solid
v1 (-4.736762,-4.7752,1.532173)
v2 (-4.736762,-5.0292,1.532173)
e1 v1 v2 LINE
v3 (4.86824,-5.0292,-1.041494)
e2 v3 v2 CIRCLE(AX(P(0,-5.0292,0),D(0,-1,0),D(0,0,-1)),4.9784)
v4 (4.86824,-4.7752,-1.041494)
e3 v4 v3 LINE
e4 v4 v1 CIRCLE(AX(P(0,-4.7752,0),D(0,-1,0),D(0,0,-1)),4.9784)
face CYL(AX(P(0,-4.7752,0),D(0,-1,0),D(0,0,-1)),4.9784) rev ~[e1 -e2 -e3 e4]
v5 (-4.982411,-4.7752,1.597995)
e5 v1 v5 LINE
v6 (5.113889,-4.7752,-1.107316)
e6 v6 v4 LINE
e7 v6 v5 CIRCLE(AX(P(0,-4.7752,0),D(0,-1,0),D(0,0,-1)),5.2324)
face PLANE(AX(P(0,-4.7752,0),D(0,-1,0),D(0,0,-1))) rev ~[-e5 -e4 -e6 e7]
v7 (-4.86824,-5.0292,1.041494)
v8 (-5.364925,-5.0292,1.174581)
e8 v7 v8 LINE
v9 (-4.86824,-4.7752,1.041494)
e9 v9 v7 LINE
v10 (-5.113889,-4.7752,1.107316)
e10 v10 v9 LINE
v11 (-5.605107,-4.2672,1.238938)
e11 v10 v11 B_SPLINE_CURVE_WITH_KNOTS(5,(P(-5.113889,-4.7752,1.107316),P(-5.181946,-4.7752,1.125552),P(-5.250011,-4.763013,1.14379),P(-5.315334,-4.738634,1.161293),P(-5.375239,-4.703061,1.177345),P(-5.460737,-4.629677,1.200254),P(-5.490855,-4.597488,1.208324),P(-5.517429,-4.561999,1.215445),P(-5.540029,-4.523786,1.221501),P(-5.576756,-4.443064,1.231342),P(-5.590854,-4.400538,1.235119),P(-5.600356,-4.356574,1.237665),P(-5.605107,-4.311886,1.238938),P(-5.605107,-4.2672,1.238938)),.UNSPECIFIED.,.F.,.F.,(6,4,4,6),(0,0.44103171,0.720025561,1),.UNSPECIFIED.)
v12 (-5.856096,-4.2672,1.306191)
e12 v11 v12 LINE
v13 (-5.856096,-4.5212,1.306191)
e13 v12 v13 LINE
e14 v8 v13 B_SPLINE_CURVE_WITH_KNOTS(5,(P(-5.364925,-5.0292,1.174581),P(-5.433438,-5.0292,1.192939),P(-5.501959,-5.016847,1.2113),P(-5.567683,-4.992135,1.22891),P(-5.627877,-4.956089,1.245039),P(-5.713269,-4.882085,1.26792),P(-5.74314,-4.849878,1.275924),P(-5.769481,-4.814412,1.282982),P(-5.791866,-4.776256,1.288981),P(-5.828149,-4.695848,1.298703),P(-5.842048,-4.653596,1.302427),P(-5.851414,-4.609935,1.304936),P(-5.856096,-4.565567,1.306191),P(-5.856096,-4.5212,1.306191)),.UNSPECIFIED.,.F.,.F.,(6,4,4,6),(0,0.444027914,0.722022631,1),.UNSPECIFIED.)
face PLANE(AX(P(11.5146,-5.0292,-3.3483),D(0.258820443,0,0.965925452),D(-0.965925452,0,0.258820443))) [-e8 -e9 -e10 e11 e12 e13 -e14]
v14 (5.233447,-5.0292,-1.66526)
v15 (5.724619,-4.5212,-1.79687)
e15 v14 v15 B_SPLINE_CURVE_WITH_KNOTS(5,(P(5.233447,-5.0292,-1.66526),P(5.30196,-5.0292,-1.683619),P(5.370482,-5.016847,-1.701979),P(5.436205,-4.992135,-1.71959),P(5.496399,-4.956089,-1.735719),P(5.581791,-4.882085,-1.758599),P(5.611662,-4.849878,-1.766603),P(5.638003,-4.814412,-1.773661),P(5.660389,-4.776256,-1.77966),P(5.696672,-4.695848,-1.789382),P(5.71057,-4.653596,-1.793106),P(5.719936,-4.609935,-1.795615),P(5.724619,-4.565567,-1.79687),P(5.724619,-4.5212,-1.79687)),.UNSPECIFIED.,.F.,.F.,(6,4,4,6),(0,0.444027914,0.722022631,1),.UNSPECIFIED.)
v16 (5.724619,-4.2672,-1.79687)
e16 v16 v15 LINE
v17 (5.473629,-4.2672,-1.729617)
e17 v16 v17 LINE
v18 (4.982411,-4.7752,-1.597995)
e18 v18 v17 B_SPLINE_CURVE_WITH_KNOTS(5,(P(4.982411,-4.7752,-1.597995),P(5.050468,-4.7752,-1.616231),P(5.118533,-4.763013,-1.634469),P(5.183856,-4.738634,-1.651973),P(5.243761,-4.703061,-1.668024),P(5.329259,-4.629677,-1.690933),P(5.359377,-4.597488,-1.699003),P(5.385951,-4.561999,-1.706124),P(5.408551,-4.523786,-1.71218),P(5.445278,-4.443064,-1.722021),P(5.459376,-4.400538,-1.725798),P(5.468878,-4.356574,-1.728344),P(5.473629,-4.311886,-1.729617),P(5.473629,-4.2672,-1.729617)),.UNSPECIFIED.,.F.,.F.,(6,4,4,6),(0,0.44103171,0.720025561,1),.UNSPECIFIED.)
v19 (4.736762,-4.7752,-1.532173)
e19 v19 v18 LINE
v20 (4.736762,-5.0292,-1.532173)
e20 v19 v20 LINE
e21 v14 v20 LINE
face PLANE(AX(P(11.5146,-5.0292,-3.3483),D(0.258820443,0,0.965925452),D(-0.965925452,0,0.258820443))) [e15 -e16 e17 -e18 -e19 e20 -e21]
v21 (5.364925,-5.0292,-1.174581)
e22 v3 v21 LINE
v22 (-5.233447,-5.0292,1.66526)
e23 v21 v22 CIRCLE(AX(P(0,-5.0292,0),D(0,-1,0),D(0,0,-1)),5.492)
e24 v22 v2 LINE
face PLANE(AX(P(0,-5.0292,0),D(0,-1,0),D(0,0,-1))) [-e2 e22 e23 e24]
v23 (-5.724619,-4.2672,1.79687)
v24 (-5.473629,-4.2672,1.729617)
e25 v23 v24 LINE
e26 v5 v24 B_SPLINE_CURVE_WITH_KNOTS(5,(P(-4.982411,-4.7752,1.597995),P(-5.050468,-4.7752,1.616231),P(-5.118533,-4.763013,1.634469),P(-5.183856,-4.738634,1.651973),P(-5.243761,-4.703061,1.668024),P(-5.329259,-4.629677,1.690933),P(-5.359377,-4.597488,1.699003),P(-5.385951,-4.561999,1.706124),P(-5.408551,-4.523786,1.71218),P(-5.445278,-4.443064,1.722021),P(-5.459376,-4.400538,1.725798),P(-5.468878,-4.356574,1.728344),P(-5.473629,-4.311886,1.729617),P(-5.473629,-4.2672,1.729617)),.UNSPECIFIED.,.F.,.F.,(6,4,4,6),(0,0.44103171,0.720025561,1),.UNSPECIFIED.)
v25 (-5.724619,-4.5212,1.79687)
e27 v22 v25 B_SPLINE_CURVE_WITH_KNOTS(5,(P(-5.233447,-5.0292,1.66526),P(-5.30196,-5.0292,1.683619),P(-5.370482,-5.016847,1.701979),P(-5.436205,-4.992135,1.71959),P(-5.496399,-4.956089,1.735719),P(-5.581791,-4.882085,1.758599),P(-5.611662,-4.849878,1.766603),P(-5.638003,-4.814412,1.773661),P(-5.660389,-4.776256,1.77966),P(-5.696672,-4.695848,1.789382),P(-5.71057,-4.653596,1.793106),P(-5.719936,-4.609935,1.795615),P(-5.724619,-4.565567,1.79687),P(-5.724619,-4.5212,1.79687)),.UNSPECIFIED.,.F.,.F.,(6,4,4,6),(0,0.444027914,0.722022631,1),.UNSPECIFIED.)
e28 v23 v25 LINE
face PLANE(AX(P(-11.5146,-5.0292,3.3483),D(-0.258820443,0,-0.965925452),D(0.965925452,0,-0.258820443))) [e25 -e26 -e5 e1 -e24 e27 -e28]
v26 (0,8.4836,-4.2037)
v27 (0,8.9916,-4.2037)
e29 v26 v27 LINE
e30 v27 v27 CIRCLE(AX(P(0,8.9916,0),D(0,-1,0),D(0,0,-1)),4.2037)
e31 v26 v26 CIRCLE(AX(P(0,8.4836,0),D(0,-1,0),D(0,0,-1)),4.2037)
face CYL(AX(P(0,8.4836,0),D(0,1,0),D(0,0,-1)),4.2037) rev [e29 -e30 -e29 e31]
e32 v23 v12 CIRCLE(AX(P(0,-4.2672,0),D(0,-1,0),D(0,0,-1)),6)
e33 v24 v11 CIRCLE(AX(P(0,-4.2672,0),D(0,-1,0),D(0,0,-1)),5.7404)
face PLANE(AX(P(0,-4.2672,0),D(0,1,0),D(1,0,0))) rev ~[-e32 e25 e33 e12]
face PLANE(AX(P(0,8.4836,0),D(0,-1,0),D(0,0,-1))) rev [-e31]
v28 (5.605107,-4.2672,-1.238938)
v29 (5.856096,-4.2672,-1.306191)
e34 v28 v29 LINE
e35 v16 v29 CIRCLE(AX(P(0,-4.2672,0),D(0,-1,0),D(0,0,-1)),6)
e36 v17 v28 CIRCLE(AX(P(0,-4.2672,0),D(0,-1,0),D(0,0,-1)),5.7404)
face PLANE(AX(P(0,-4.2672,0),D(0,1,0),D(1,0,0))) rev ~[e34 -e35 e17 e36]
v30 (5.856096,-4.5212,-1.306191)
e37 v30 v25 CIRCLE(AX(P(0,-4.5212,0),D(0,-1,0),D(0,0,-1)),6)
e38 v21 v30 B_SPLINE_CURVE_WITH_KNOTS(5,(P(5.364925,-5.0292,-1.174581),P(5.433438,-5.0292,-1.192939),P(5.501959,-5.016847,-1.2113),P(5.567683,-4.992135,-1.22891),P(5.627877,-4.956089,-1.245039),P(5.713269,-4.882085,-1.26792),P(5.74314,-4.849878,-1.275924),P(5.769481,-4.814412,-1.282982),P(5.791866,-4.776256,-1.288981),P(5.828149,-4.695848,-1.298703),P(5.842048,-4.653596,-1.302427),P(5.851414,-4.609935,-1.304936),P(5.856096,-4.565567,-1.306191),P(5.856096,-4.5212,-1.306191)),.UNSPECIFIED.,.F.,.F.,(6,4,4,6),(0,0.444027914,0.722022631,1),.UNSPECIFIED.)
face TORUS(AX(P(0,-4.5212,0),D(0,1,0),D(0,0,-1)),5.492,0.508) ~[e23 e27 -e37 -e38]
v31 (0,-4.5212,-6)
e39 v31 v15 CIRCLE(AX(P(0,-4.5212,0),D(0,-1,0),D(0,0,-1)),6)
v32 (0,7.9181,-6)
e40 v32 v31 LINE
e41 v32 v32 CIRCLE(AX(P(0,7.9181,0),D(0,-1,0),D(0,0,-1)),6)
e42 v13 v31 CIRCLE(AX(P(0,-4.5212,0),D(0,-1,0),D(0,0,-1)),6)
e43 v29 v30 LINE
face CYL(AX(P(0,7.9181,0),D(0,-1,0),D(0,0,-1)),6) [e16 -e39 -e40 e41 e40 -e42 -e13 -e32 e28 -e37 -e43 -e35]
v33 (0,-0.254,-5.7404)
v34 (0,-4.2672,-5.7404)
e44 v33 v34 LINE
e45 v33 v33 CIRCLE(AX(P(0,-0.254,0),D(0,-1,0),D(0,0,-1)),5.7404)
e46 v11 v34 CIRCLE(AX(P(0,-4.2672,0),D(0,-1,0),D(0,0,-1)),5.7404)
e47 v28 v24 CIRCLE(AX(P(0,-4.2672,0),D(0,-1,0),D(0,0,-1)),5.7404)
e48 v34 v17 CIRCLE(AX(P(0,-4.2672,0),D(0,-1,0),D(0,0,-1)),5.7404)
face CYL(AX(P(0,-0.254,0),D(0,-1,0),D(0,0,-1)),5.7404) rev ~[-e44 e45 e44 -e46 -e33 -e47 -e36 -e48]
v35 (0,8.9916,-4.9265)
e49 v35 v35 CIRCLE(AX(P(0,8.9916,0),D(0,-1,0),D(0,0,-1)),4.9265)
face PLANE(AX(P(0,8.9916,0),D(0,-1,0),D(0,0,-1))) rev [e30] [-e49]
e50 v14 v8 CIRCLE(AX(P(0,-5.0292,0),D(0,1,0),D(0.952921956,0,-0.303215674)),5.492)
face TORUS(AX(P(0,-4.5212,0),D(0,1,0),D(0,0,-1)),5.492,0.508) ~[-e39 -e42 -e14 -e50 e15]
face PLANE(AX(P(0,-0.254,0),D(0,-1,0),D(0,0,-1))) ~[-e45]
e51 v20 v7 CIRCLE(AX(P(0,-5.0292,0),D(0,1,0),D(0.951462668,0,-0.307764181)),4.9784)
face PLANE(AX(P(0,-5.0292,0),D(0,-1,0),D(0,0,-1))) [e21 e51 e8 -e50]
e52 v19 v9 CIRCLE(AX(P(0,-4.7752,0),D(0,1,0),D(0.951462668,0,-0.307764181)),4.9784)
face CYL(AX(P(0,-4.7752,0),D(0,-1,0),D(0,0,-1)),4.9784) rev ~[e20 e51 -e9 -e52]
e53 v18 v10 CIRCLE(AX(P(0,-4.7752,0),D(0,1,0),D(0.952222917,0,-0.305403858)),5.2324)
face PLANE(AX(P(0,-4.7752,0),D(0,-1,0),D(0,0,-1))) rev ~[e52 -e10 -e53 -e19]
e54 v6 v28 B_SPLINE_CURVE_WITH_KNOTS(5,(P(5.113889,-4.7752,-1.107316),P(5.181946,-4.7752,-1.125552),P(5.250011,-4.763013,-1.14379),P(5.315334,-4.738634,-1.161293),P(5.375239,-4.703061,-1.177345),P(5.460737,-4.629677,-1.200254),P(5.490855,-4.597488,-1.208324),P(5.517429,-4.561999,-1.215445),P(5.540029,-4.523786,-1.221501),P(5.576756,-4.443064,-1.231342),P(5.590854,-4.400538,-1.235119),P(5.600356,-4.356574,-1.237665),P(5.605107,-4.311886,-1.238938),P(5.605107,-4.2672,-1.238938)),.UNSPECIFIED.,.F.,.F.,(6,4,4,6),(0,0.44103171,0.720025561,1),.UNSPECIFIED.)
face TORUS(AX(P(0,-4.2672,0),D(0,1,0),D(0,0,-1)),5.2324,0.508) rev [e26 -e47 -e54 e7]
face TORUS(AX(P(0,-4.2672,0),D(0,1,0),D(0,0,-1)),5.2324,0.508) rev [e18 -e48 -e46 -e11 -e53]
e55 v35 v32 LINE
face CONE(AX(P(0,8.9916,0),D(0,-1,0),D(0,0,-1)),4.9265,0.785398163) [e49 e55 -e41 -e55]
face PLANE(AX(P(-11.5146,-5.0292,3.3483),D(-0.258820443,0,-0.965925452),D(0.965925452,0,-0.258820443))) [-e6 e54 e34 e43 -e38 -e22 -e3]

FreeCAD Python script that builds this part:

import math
import FreeCAD as App
import Part
import Sketcher

V = App.Vector
Q = App.Units.Quantity


def add_polygon(sketch, points):
    """Adds a closed chain of lines whose ends are joined by coincident constraints."""
    first, n = sketch.GeometryCount, len(points)
    for a, b in zip(points, points[1:] + points[:1]):
        sketch.addGeometry(Part.LineSegment(App.Vector(*a, 0), App.Vector(*b, 0)), False)
    for i in range(n):
        sketch.addConstraint(Sketcher.Constraint("Coincident", first + i, 2, first + (i + 1) % n, 1))

doc = App.newDocument("Part")
body = doc.addObject("PartDesign::Body", "Body")

sketch1 = body.newObject("Sketcher::SketchObject", "Sketch")
sketch1.AttachmentSupport = (doc.getObject("YZ_Plane"), [""])
sketch1.MapMode = "FlatFace"
add_polygon(sketch1, [(8.5, 0), (0, 0), (0, -6), (7.9, -6), (9, -4.9), (9, -4.2), (8.5, -4.2)])
sketch1.addConstraint([
    Sketcher.Constraint("Horizontal", 0),
    Sketcher.Constraint("Vertical", 1),
    Sketcher.Constraint("Horizontal", 2),
    Sketcher.Constraint("Vertical", 4),
    Sketcher.Constraint("Horizontal", 5),
    Sketcher.Constraint("Vertical", 6),
    Sketcher.Constraint("Coincident", 0, 2, -1, 1),
    Sketcher.Constraint("Angle", 3, Q("45 deg")),
    Sketcher.Constraint("DistanceX", 5, 2, 5, 1, Q("0.02 in")),
    Sketcher.Constraint("DistanceX", 0, 2, 0, 1, Q("0.334 in")),
    Sketcher.Constraint("DistanceY", 6, 1, 6, 2, Q("0.1655 in")),
    Sketcher.Constraint("DistanceX", 2, 1, 2, 2, 7.918),
    Sketcher.Constraint("DistanceY", 1, 2, 1, 1, 6.0),
])
revolution = body.newObject("PartDesign::Revolution", "Revolution")
revolution.Profile = sketch1
revolution.ReferenceAxis = (sketch1, ["H_Axis"])
revolution.Angle = 360

sketch2 = body.newObject("Sketcher::SketchObject", "Sketch001")
sketch2.AttachmentSupport = (doc.getObject("YZ_Plane"), [""])
sketch2.MapMode = "FlatFace"
sketch2.addGeometry([
    Part.LineSegment(V(0, 0, 0), V(-5, 0, 0)),
    Part.LineSegment(V(-5, 0, 0), V(-5, -5.5, 0)),
    Part.ArcOfCircle(Part.Circle(V(-4.5, -5.5, 0), V(0, 0, 1), 0.5), math.radians(180), math.radians(270)),
    Part.LineSegment(V(-4.5, -6, 0), V(0, -6, 0)),
    Part.LineSegment(V(0, -6, 0), V(0, 0, 0)),
], False)
sketch2.addConstraint([
    Sketcher.Constraint("Coincident", 0, 2, 1, 1),
    Sketcher.Constraint("Tangent", 1, 2, 2, 1),
    Sketcher.Constraint("Tangent", 2, 2, 3, 1),
    Sketcher.Constraint("Coincident", 3, 2, 4, 1),
    Sketcher.Constraint("Coincident", 4, 2, 0, 1),
    Sketcher.Constraint("Horizontal", 0),
    Sketcher.Constraint("Vertical", 1),
    Sketcher.Constraint("Horizontal", 3),
    Sketcher.Constraint("Vertical", 4),
    Sketcher.Constraint("Coincident", 4, 2, -1, 1),
    Sketcher.Constraint("Radius", 2, Q("0.02 in")),
    Sketcher.Constraint("DistanceX", 0, 2, 0, 1, Q("0.198 in")),
    Sketcher.Constraint("DistanceY", 1, 2, 1, 1, 5.492),
])
revolution2 = body.newObject("PartDesign::Revolution", "Revolution001")
revolution2.Profile = sketch2
revolution2.ReferenceAxis = (sketch2, ["H_Axis"])
revolution2.Angle = 360

sketch3 = body.newObject("Sketcher::SketchObject", "Sketch002")
sketch3.AttachmentSupport = (doc.getObject("XZ_Plane"), [""])
sketch3.MapMode = "FlatFace"
sketch3.AttachmentOffset = App.Placement(V(0, 0, 0.198 * 25.4), App.Rotation())
add_polygon(sketch3, [(11.5, -3.3), (-11.6, 2.9), (-11.5, 3.3), (11.6, -2.9)])
sketch3.addConstraint([
    Sketcher.Constraint("Symmetric", 0, 2, 2, 2, -1, 1),
    Sketcher.Constraint("Symmetric", 1, 2, 3, 2, -1, 1),
    Sketcher.Constraint("Perpendicular", 0, 1),
    Sketcher.Constraint("Angle", 0, Q("165 deg")),
    Sketcher.Constraint("Distance", 1, Q("0.02 in")),
    Sketcher.Constraint("Distance", 0, Q("0.944 in")),
])
pocket1 = body.newObject("PartDesign::Pocket", "Pocket")
pocket1.Profile = sketch3
pocket1.Length = Q("0.03 in")

sketch4 = body.newObject("Sketcher::SketchObject", "Sketch003")
sketch4.AttachmentSupport = (doc.getObject("YZ_Plane"), [""])
sketch4.MapMode = "FlatFace"
sketch4.addGeometry([
    Part.LineSegment(V(-0.25, 0, 0), V(-5.28, 0, 0)),
    Part.LineSegment(V(-5.28, 0, 0), V(-5.28, -4.98, 0)),
    Part.LineSegment(V(-5.28, -4.98, 0), V(-4.78, -4.98, 0)),
    Part.LineSegment(V(-4.78, -4.98, 0), V(-4.78, -5.23, 0)),
    Part.ArcOfCircle(Part.Circle(V(-4.27, -5.23, 0), V(0, 0, 1), 0.51), math.radians(180), math.radians(270)),
    Part.LineSegment(V(-4.27, -5.74, 0), V(-0.25, -5.74, 0)),
    Part.LineSegment(V(-0.25, -5.74, 0), V(-0.25, 0, 0)),
], False)
sketch4.addConstraint([
    Sketcher.Constraint("Coincident", 0, 2, 1, 1),
    Sketcher.Constraint("Coincident", 1, 2, 2, 1),
    Sketcher.Constraint("Coincident", 2, 2, 3, 1),
    Sketcher.Constraint("Tangent", 3, 2, 4, 1),
    Sketcher.Constraint("Tangent", 4, 2, 5, 1),
    Sketcher.Constraint("Coincident", 5, 2, 6, 1),
    Sketcher.Constraint("Coincident", 6, 2, 0, 1),
    Sketcher.Constraint("Horizontal", 0),
    Sketcher.Constraint("Vertical", 1),
    Sketcher.Constraint("Horizontal", 2),
    Sketcher.Constraint("Vertical", 3),
    Sketcher.Constraint("Horizontal", 5),
    Sketcher.Constraint("Vertical", 6),
    Sketcher.Constraint("PointOnObject", 0, 2, -1),
    Sketcher.Constraint("Radius", 4, Q("0.02 in")),
    Sketcher.Constraint("DistanceX", 2, 1, 2, 2, Q("0.02 in")),
    Sketcher.Constraint("DistanceY", 3, 2, 3, 1, Q("0.01 in")),
    Sketcher.Constraint("DistanceX", 0, 2, 0, 1, Q("0.198 in")),
    Sketcher.Constraint("DistanceY", 1, 2, 1, 1, Q("0.196 in")),
    Sketcher.Constraint("DistanceX", 5, 2, -1, 1, Q("0.01 in")),
])
groove = body.newObject("PartDesign::Groove", "Groove")
groove.Profile = sketch4
groove.ReferenceAxis = (sketch4, ["H_Axis"])
groove.Angle = 360

doc.recompute()
